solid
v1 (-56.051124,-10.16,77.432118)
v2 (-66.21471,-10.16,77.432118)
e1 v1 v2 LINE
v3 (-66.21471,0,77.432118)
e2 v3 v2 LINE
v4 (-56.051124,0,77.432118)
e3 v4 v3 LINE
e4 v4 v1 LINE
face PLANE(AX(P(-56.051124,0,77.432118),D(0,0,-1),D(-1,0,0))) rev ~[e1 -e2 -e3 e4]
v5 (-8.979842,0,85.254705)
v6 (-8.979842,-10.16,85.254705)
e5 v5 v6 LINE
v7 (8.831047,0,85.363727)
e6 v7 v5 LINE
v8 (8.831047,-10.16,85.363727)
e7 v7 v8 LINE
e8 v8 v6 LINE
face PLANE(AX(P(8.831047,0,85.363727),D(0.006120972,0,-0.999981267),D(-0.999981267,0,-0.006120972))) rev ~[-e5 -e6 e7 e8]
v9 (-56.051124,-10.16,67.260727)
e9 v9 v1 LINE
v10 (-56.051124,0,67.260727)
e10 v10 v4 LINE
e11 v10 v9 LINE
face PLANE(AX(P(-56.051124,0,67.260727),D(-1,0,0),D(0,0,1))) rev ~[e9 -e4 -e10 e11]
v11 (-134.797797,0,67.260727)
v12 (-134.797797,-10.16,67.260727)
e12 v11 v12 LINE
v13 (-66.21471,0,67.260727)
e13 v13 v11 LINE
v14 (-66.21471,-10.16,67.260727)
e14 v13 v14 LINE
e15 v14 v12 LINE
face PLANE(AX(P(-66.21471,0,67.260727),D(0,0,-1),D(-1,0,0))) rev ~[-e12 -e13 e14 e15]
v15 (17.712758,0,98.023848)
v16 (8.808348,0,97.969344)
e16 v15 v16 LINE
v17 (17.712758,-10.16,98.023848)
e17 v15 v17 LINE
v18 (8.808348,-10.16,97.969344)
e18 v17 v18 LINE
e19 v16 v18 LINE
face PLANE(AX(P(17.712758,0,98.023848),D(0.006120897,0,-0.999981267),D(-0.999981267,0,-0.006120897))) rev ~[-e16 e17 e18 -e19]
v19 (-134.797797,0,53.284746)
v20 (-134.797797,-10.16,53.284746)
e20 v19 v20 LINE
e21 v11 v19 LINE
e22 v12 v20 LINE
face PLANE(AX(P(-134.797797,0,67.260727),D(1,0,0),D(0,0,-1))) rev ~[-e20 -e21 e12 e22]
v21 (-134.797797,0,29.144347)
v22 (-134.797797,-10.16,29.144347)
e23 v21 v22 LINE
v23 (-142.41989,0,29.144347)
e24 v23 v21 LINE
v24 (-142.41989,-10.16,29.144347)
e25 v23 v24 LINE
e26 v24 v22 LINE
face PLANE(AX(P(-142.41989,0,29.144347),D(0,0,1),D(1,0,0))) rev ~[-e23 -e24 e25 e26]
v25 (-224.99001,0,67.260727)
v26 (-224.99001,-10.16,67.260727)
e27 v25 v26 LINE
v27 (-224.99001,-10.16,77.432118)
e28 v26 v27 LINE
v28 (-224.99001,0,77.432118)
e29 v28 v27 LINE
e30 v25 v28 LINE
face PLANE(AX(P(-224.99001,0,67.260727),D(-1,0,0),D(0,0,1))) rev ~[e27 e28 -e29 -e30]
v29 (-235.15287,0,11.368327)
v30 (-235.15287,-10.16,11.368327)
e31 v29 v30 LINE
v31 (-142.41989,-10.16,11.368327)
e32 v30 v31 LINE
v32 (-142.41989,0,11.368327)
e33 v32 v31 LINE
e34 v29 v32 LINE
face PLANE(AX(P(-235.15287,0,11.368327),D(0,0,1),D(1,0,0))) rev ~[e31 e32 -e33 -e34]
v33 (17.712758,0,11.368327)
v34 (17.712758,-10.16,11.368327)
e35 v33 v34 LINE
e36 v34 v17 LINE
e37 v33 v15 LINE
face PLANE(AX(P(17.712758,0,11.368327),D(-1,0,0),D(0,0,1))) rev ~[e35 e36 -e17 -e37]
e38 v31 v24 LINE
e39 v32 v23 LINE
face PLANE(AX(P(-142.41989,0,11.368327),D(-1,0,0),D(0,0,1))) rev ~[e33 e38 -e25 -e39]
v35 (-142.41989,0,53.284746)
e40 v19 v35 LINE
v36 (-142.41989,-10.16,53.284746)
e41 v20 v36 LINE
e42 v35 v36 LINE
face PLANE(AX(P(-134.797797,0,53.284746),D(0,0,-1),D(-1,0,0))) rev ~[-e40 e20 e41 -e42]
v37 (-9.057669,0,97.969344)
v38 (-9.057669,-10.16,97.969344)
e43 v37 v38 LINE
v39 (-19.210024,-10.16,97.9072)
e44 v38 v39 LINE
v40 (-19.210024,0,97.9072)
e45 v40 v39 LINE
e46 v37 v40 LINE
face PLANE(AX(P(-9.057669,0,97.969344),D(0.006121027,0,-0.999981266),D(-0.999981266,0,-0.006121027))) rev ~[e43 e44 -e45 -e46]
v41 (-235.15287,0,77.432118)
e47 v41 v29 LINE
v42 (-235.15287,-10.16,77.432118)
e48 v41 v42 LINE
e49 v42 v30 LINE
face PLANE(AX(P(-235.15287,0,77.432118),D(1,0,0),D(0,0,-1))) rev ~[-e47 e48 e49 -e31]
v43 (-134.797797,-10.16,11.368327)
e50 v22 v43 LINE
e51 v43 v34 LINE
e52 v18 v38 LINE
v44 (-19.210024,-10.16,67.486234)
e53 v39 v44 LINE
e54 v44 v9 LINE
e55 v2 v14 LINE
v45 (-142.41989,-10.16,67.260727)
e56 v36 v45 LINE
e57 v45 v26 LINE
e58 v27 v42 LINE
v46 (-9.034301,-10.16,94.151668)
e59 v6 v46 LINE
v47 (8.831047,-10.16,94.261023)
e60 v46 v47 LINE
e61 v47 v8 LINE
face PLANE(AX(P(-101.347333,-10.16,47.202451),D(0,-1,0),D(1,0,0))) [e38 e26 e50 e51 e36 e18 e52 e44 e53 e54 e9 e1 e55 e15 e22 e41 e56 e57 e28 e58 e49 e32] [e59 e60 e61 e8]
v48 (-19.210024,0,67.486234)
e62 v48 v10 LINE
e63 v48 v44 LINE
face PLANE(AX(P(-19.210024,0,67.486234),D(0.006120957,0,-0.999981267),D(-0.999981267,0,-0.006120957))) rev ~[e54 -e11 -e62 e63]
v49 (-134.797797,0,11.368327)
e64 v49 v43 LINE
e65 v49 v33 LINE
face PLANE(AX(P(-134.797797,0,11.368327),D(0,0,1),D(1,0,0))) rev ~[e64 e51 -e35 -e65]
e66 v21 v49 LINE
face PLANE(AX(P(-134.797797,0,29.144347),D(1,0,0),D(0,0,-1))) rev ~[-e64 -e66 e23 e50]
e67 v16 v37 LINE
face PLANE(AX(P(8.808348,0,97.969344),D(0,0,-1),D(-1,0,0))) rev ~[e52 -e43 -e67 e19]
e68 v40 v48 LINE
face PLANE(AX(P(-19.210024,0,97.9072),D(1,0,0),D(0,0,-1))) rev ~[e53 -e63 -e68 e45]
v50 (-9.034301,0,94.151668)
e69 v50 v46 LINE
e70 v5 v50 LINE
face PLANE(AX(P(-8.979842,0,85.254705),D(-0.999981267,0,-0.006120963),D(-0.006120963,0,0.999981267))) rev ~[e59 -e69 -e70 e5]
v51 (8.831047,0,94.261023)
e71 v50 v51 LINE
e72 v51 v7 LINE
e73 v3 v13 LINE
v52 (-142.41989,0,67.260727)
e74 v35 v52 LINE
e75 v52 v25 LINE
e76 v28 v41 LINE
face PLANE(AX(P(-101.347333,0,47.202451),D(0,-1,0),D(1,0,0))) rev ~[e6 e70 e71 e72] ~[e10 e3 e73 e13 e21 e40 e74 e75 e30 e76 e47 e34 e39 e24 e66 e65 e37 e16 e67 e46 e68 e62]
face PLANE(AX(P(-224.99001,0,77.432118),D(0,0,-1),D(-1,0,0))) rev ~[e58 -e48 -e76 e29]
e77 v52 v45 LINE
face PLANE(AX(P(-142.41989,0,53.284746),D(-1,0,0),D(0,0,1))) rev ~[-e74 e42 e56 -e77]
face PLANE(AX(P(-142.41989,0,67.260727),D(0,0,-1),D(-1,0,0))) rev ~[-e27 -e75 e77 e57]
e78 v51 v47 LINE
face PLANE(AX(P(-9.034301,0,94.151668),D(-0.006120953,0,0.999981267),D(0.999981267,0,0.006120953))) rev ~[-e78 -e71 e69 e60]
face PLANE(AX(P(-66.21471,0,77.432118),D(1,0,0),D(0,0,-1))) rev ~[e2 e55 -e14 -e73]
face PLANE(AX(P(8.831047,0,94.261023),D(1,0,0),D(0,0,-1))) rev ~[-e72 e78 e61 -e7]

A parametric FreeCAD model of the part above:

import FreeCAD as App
import Part
import Sketcher
Q = App.Units.Quantity


def add_polygon(sketch, points):
    """Adds a closed chain of lines whose ends are joined by coincident constraints."""
    first, n = sketch.GeometryCount, len(points)
    for a, b in zip(points, points[1:] + points[:1]):
        sketch.addGeometry(Part.LineSegment(App.Vector(*a, 0), App.Vector(*b, 0)), False)
    for i in range(n):
        sketch.addConstraint(Sketcher.Constraint("Coincident", first + i, 2, first + (i + 1) % n, 1))

doc = App.newDocument("Part")
body = doc.addObject("PartDesign::Body", "Body")

# Sketch on XZ plane
sketch1 = doc.addObject("Sketcher::SketchObject", "Sketch")
body.addObject(sketch1)
sketch1.AttachmentSupport = (doc.XZ_Plane, [""])
sketch1.MapMode = "FlatFace"
add_polygon(sketch1, [(-135, 11), (18, 11), (18, 98), (9, 98), (-9, 98), (-19, 98), (-19, 67), (-56, 67), (-56, 77), (-66, 77), (-66, 67), (-135, 67), (-135, 53), (-142, 53), (-142, 67), (-225, 67), (-225, 77), (-235, 77), (-235, 11), (-142, 11), (-142, 29), (-135, 29)])  # lines 0-21
add_polygon(sketch1, [(9, 94), (9, 85), (-9, 85), (-9, 94)])  # lines 22-25
sketch1.addConstraint(Sketcher.Constraint("Horizontal", 0))
sketch1.addConstraint(Sketcher.Constraint("Vertical", 1))
sketch1.addConstraint(Sketcher.Constraint("Horizontal", 3))
sketch1.addConstraint(Sketcher.Constraint("Vertical", 5))
sketch1.addConstraint(Sketcher.Constraint("Vertical", 7))
sketch1.addConstraint(Sketcher.Constraint("Horizontal", 8))
sketch1.addConstraint(Sketcher.Constraint("Vertical", 9))
sketch1.addConstraint(Sketcher.Constraint("Horizontal", 10))
sketch1.addConstraint(Sketcher.Constraint("Vertical", 11))
sketch1.addConstraint(Sketcher.Constraint("Horizontal", 12))
sketch1.addConstraint(Sketcher.Constraint("Vertical", 13))
sketch1.addConstraint(Sketcher.Constraint("Horizontal", 14))
sketch1.addConstraint(Sketcher.Constraint("Vertical", 15))
sketch1.addConstraint(Sketcher.Constraint("Horizontal", 16))
sketch1.addConstraint(Sketcher.Constraint("Vertical", 17))
sketch1.addConstraint(Sketcher.Constraint("Horizontal", 18))
sketch1.addConstraint(Sketcher.Constraint("Vertical", 19))
sketch1.addConstraint(Sketcher.Constraint("Horizontal", 20))
sketch1.addConstraint(Sketcher.Constraint("Vertical", 21))
sketch1.addConstraint(Sketcher.Constraint("Vertical", 22))
sketch1.addConstraint(Sketcher.Constraint("Parallel", 2, 4))
sketch1.addConstraint(Sketcher.Constraint("Parallel", 4, 6))
sketch1.addConstraint(Sketcher.Constraint("Parallel", 6, 23))
sketch1.addConstraint(Sketcher.Constraint("Perpendicular", 23, 24))
sketch1.addConstraint(Sketcher.Constraint("Perpendicular", 24, 25))
sketch1.addConstraint(Sketcher.Constraint("Horizontal", 6, 2, 9, 2))
sketch1.addConstraint(Sketcher.Constraint("Horizontal", 10, 2, 13, 2))
sketch1.addConstraint(Sketcher.Constraint("Horizontal", 8, 2, 15, 2))
sketch1.addConstraint(Sketcher.Constraint("Horizontal", 0, 2, 17, 2))
sketch1.addConstraint(Sketcher.Constraint("Vertical", 13, 2, 18, 2))
sketch1.addConstraint(Sketcher.Constraint("Vertical", 11, 2, 20, 2))
sketch1.addConstraint(Sketcher.Constraint("DistanceX", 10, 2, -1, 1, Q("5.3069999 in")))
sketch1.addConstraint(Sketcher.Constraint("DistanceX", 4, 2, -1, 1, Q("0.7563002 in")))
sketch1.addConstraint(Sketcher.Constraint("DistanceX", 14, 2, 14, 1, 82.57012))
sketch1.addConstraint(Sketcher.Constraint("DistanceX", 16, 2, 16, 1, 10.16286))
sketch1.addConstraint(Sketcher.Constraint("DistanceY", 1, 1, 1, 2, 86.655521))
sketch1.addConstraint(Sketcher.Constraint("DistanceY", 7, 1, 7, 2, 10.171391))
sketch1.addConstraint(Sketcher.Constraint("DistanceY", 11, 2, 11, 1, 13.975981))
sketch1.addConstraint(Sketcher.Constraint("DistanceY", 17, 2, 17, 1, 66.063791))
sketch1.addConstraint(Sketcher.Constraint("DistanceY", 19, 1, 19, 2, 17.77602))
sketch1.addConstraint(Sketcher.Constraint("DistanceY", -1, 1, 4, 2, 97.9072))
sketch1.addConstraint(Sketcher.Constraint("DistanceX", 24, 2, -1, 1, 9.034301))
sketch1.addConstraint(Sketcher.Constraint("DistanceX", 6, 2, 5, 2, 36.8411))
sketch1.addConstraint(Sketcher.Constraint("DistanceX", 14, 2, 9, 2, 158.7753))
sketch1.addConstraint(Sketcher.Constraint("DistanceX", 2, 2, 22, 2, 0.022699))
sketch1.addConstraint(Sketcher.Constraint("Distance", 24, 8.89713))
sketch1.addConstraint(Sketcher.Constraint("DistanceX", 0, 1, 0, 2, 152.510555))
sketch1.addConstraint(Sketcher.Constraint("DistanceX", 3, 2, 3, 1, 17.866017))
sketch1.addConstraint(Sketcher.Constraint("DistanceX", 8, 2, 8, 1, 10.163586))
sketch1.addConstraint(Sketcher.Constraint("DistanceY", 5, 2, 5, 1, 30.420966))
sketch1.addConstraint(Sketcher.Constraint("DistanceX", 3, 2, -1, 1, 9.057669))
sketch1.addConstraint(Sketcher.Constraint("DistanceY", -1, 1, 24, 2, 94.151668))
pad1 = doc.addObject("PartDesign::Pad", "Pad")
body.addObject(pad1)
pad1.Profile = sketch1
pad1.Length = Q("0.4 in")

doc.recompute()
